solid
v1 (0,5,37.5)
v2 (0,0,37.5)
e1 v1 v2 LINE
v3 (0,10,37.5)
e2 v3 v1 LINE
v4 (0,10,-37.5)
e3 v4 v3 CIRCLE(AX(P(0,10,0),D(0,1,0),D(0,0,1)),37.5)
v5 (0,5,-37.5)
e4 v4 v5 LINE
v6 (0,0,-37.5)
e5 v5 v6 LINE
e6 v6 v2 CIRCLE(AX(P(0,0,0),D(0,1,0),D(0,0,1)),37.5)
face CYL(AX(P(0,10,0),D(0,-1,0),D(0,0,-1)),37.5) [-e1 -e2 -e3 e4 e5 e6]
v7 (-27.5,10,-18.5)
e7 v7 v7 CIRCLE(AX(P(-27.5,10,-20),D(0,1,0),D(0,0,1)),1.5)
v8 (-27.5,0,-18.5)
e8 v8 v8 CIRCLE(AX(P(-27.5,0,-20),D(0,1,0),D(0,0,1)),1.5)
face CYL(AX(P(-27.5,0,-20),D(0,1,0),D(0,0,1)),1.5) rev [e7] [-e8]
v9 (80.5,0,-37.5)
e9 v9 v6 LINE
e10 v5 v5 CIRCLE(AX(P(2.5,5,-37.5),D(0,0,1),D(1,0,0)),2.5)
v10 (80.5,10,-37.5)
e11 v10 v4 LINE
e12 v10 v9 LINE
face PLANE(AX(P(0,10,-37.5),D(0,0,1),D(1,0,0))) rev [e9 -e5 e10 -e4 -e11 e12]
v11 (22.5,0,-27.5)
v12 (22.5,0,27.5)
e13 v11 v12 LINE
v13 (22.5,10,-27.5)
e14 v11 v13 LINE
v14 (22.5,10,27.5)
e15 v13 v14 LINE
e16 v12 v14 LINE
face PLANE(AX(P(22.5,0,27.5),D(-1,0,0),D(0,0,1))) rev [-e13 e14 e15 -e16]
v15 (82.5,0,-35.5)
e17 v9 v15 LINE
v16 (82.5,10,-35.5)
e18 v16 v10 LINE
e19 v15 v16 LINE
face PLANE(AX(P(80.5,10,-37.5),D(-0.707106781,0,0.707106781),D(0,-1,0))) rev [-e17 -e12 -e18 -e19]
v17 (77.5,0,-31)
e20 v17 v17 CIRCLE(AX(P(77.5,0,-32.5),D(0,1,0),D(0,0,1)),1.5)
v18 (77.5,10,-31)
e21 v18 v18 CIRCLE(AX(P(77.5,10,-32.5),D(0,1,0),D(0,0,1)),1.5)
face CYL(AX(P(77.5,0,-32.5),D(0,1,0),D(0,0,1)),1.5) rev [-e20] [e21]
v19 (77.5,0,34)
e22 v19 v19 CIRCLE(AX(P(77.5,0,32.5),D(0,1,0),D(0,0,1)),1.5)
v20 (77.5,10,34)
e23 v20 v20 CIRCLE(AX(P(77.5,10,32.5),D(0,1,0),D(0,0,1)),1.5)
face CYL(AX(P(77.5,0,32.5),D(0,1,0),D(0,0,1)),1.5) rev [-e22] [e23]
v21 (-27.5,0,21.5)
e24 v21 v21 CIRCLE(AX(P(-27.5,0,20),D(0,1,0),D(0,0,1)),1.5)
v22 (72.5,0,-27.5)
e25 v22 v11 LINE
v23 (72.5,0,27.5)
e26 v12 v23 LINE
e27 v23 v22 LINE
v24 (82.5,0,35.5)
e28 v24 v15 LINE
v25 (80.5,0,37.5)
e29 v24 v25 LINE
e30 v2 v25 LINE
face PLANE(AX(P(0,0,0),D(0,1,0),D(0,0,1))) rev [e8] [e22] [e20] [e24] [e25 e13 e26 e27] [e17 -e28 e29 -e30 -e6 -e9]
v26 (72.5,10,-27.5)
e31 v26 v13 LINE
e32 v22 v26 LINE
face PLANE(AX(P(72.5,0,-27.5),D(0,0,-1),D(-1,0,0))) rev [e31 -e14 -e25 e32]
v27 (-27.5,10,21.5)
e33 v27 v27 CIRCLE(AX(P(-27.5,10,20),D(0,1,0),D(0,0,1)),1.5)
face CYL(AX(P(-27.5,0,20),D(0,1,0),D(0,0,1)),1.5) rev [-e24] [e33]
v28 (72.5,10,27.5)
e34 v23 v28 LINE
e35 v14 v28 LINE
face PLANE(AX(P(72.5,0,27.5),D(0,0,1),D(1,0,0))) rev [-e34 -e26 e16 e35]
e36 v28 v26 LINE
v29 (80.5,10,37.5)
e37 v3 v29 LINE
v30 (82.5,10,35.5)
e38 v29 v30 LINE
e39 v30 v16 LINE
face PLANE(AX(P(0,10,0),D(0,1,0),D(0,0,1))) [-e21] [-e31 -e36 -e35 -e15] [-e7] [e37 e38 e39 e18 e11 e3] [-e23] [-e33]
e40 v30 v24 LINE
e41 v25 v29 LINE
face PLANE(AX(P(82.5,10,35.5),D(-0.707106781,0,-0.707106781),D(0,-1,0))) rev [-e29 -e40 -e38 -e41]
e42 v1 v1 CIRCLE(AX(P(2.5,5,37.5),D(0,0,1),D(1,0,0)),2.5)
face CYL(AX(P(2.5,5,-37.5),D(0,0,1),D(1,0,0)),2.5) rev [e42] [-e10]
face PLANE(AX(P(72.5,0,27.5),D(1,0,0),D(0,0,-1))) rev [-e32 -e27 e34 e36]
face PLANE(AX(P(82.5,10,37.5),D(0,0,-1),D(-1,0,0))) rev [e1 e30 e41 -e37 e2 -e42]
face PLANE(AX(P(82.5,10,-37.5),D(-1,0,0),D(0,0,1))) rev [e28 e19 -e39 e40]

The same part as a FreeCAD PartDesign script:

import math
import FreeCAD as App
import Part
import Sketcher
Q = App.Units.Quantity


def edges_at(feature, points):
    """Names of the edges that pass closest to the given points."""
    edges = feature.Shape.Edges
    near = lambda p: min(range(len(edges)), key=lambda i: edges[i].distToShape(Part.Vertex(*p))[0])
    return sorted({f"Edge{near(p) + 1}" for p in points})

doc = App.newDocument("Part")
body = doc.addObject("PartDesign::Body", "Body")

sketch1 = doc.addObject("Sketcher::SketchObject", "Sketch")
body.addObject(sketch1)
sketch1.AttachmentSupport = (doc.XZ_Plane, [""])
sketch1.MapMode = "FlatFace"
sketch1.addGeometry(Part.LineSegment(App.Vector(82, -38, 0), App.Vector(0, -38, 0)), False)
sketch1.addGeometry(Part.ArcOfCircle(Part.Circle(App.Vector(0, 0, 0), App.Vector(0, 0, 1), 38), math.radians(90), math.radians(270)), False)
sketch1.addGeometry(Part.LineSegment(App.Vector(0, 38, 0), App.Vector(82, 38, 0)), False)
sketch1.addGeometry(Part.LineSegment(App.Vector(82, 38, 0), App.Vector(82, -38, 0)), False)
sketch1.addConstraint(Sketcher.Constraint("Tangent", 0, 2, 1, 2))
sketch1.addConstraint(Sketcher.Constraint("Tangent", 1, 1, 2, 1))
sketch1.addConstraint(Sketcher.Constraint("Coincident", 2, 2, 3, 1))
sketch1.addConstraint(Sketcher.Constraint("Coincident", 3, 2, 0, 1))
sketch1.addConstraint(Sketcher.Constraint("Horizontal", 0))
sketch1.addConstraint(Sketcher.Constraint("Horizontal", 2))
sketch1.addConstraint(Sketcher.Constraint("Vertical", 3))
sketch1.addConstraint(Sketcher.Constraint("Coincident", 1, 3, -1, 1))
sketch1.addConstraint(Sketcher.Constraint("Radius", 1, Q("37.5 mm")))
sketch1.addConstraint(Sketcher.Constraint("DistanceX", 0, 2, 0, 1, Q("82.5 mm")))
pad1 = doc.addObject("PartDesign::Pad", "Pad")
body.addObject(pad1)
pad1.Profile = sketch1
pad1.Length = 10
pad1.Reversed = True

sketch2 = doc.addObject("Sketcher::SketchObject", "Sketch001")
body.addObject(sketch2)
sketch2.AttachmentSupport = (doc.XY_Plane, [""])
sketch2.MapMode = "FlatFace"
sketch2.AttachmentOffset = App.Placement(App.Vector(0, 0, 37.5), App.Rotation())
sketch2.addGeometry(Part.Circle(App.Vector(2.5, 5, 0), App.Vector(0, 0, 1), 2.5), False)
sketch2.addConstraint(Sketcher.Constraint("Diameter", 0, Q("5 mm")))
sketch2.addConstraint(Sketcher.Constraint("DistanceY", -1, 1, 0, 3, Q("5 mm")))
sketch2.addConstraint(Sketcher.Constraint("DistanceX", -1, 1, 0, 3, Q("2.5 mm")))
pocket1 = doc.addObject("PartDesign::Pocket", "Pocket")
body.addObject(pocket1)
pocket1.Profile = sketch2
pocket1.Type = "ThroughAll"

sketch3 = doc.addObject("Sketcher::SketchObject", "Sketch002")
body.addObject(sketch3)
sketch3.AttachmentSupport = (doc.XZ_Plane, [""])
sketch3.MapMode = "FlatFace"
sketch3.AttachmentOffset = App.Placement(App.Vector(0, 0, -10), App.Rotation())
sketch3.addGeometry(Part.Circle(App.Vector(-27.5, -20, 0), App.Vector(0, 0, 1), 1.5), False)
sketch3.addGeometry(Part.Circle(App.Vector(-27.5, 20, 0), App.Vector(0, 0, 1), 1.5), False)
sketch3.addGeometry(Part.Circle(App.Vector(77.5, -32.5, 0), App.Vector(0, 0, 1), 1.5), False)
sketch3.addGeometry(Part.Circle(App.Vector(77.5, 32.5, 0), App.Vector(0, 0, 1), 1.5), False)
sketch3.addConstraint(Sketcher.Constraint("Equal", 0, 1))
sketch3.addConstraint(Sketcher.Constraint("Equal", 1, 2))
sketch3.addConstraint(Sketcher.Constraint("Equal", 2, 3))
sketch3.addConstraint(Sketcher.Constraint("Symmetric", 0, 3, 1, 3, -1))
sketch3.addConstraint(Sketcher.Constraint("Symmetric", 2, 3, 3, 3, -1))
sketch3.addConstraint(Sketcher.Constraint("Diameter", 0, Q("3 mm")))
sketch3.addConstraint(Sketcher.Constraint("DistanceY", 0, 3, -1, 1, Q("20 mm")))
sketch3.addConstraint(Sketcher.Constraint("DistanceX", 0, 3, 2, 3, Q("105 mm")))
sketch3.addConstraint(Sketcher.Constraint("DistanceY", 2, 3, 3, 3, Q("65 mm")))
sketch3.addConstraint(Sketcher.Constraint("DistanceX", 0, 3, -1, 1, Q("27.5 mm")))
pocket2 = doc.addObject("PartDesign::Pocket", "Pocket001")
body.addObject(pocket2)
pocket2.Profile = sketch3
pocket2.Type = "ThroughAll"
pocket2.Reversed = True

sketch4 = doc.addObject("Sketcher::SketchObject", "Sketch003")
body.addObject(sketch4)
sketch4.AttachmentSupport = (doc.XZ_Plane, [""])
sketch4.MapMode = "FlatFace"
sketch4.AttachmentOffset = App.Placement(App.Vector(0, 0, -10), App.Rotation())
sketch4.addGeometry(Part.LineSegment(App.Vector(22, -28, 0), App.Vector(22, 28, 0)), False)
sketch4.addGeometry(Part.LineSegment(App.Vector(22, 28, 0), App.Vector(72, 28, 0)), False)
sketch4.addGeometry(Part.LineSegment(App.Vector(72, 28, 0), App.Vector(72, -28, 0)), False)
sketch4.addGeometry(Part.LineSegment(App.Vector(72, -28, 0), App.Vector(22, -28, 0)), False)
sketch4.addConstraint(Sketcher.Constraint("Coincident", 0, 2, 1, 1))
sketch4.addConstraint(Sketcher.Constraint("Coincident", 1, 2, 2, 1))
sketch4.addConstraint(Sketcher.Constraint("Coincident", 2, 2, 3, 1))
sketch4.addConstraint(Sketcher.Constraint("Coincident", 3, 2, 0, 1))
sketch4.addConstraint(Sketcher.Constraint("Vertical", 0))
sketch4.addConstraint(Sketcher.Constraint("Horizontal", 1))
sketch4.addConstraint(Sketcher.Constraint("Vertical", 2))
sketch4.addConstraint(Sketcher.Constraint("Horizontal", 3))
sketch4.addConstraint(Sketcher.Constraint("DistanceX", 1, 1, 1, 2, Q("50 mm")))
sketch4.addConstraint(Sketcher.Constraint("DistanceY", 0, 1, 0, 2, Q("55 mm")))
sketch4.addConstraint(Sketcher.Constraint("DistanceX", -1, 1, 0, 2, Q("22.5 mm")))
sketch4.addConstraint(Sketcher.Constraint("DistanceY", -1, 1, 0, 2, Q("27.5 mm")))
pocket3 = doc.addObject("PartDesign::Pocket", "Pocket002")
body.addObject(pocket3)
pocket3.Profile = sketch4
pocket3.Type = "ThroughAll"
pocket3.Reversed = True
doc.recompute()

chamfer = doc.addObject("PartDesign::Chamfer", "Chamfer")
body.addObject(chamfer)
chamfer.Base = (pocket3, edges_at(pocket3, [(82.5, 5, -37.5), (82.5, 5, 37.5)]))
chamfer.Size = 2

doc.recompute()
